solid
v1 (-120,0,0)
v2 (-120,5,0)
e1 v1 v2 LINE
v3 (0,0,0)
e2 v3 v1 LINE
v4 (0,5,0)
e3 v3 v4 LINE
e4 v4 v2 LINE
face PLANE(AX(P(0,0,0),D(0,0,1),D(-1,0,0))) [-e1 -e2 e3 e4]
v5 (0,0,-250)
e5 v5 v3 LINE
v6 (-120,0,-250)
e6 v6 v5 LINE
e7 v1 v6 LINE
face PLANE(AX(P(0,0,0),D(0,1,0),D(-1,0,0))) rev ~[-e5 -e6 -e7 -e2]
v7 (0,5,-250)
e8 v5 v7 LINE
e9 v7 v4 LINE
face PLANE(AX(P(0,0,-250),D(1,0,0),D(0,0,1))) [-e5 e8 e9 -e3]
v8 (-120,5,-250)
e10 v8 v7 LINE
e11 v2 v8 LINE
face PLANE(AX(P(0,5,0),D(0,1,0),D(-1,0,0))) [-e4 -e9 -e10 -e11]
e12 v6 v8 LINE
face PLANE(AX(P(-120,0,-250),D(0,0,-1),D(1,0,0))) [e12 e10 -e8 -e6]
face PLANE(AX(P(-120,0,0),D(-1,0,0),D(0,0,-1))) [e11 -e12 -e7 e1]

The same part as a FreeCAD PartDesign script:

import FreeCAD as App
import Part
import Sketcher

V = App.Vector
Q = App.Units.Quantity


def add_polygon(sketch, points):
    """Adds a closed chain of lines whose ends are joined by coincident constraints."""
    first, n = sketch.GeometryCount, len(points)
    for a, b in zip(points, points[1:] + points[:1]):
        sketch.addGeometry(Part.LineSegment(App.Vector(*a, 0), App.Vector(*b, 0)), False)
    for i in range(n):
        sketch.addConstraint(Sketcher.Constraint("Coincident", first + i, 2, first + (i + 1) % n, 1))

doc = App.newDocument("Part")
params = doc.addObject("Spreadsheet::Sheet", "Params")
for row, (alias, value) in enumerate([
    ("sketch1_width", "120 mm"),
    ("sketch1_height", "250 mm"),
    ("pad1_length", "5 mm"),
], start=1):
    params.set(f"A{row}", alias)
    params.set(f"B{row}", "=" + value)
    params.setAlias(f"B{row}", alias)

body = doc.addObject("PartDesign::Body", "Body")

# Sketch on XZ plane
sketch1 = body.newObject("Sketcher::SketchObject", "Sketch")
sketch1.AttachmentSupport = (doc.getObject("XZ_Plane"), [""])
sketch1.MapMode = "FlatFace"
add_polygon(sketch1, [(-120, 0), (0, 0), (0, -250), (-120, -250)])  # lines 0-3
sketch1.addConstraint(Sketcher.Constraint("Horizontal", 0))
sketch1.addConstraint(Sketcher.Constraint("Vertical", 1))
sketch1.addConstraint(Sketcher.Constraint("Horizontal", 2))
sketch1.addConstraint(Sketcher.Constraint("Vertical", 3))
sketch1.addConstraint(Sketcher.Constraint("Coincident", 0, 2, -1, 1))
sketch1.addConstraint(Sketcher.Constraint("DistanceX", 0, 1, 0, 2, Q("120 mm")))
sketch1.addConstraint(Sketcher.Constraint("DistanceY", 1, 2, 1, 1, Q("250 mm")))
sketch1.setExpression("Constraints[9]", "Params.sketch1_width")
sketch1.setExpression("Constraints[10]", "Params.sketch1_height")
pad1 = body.newObject("PartDesign::Pad", "Pad")
pad1.Profile = sketch1
pad1.setExpression("Length", "Params.pad1_length")
pad1.Reversed = True

doc.recompute()
